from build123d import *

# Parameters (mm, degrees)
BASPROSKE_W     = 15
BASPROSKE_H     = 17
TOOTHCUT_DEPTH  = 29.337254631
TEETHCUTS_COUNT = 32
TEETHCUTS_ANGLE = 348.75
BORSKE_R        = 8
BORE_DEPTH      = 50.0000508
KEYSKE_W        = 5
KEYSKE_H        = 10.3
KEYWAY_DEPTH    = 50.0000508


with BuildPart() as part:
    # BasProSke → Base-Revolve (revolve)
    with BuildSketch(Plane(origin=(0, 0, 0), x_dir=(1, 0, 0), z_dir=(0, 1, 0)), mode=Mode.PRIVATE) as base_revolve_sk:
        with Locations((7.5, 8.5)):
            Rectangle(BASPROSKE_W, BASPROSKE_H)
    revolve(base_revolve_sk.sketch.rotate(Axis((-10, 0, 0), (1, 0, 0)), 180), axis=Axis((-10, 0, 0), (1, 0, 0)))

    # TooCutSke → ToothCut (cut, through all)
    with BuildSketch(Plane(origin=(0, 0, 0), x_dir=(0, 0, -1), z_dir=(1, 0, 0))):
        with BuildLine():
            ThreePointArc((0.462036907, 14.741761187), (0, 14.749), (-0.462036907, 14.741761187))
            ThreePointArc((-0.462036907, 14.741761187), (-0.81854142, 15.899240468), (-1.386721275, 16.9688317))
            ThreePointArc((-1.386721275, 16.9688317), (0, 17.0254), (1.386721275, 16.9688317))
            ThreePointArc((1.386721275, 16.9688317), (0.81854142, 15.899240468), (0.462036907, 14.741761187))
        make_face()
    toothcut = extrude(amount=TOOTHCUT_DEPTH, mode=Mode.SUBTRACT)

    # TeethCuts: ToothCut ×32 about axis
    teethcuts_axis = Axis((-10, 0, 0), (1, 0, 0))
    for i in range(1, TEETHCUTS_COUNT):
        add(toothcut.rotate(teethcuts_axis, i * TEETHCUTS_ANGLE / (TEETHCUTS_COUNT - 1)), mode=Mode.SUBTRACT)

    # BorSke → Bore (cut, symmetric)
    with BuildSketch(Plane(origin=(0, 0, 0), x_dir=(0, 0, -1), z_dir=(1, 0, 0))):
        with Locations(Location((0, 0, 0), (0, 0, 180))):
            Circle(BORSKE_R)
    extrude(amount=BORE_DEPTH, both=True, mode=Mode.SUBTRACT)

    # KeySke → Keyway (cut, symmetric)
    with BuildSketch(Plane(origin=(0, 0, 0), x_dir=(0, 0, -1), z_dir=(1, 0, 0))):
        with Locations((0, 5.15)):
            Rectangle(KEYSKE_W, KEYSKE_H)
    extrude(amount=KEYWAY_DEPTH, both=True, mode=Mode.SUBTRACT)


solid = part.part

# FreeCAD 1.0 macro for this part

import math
import FreeCAD as App
import Part
import Sketcher
from FreeCAD import Vector
Q = App.Units.Quantity


def add_polygon(sketch, points):
    """Adds a closed chain of lines whose ends are joined by coincident constraints."""
    first, n = sketch.GeometryCount, len(points)
    for a, b in zip(points, points[1:] + points[:1]):
        sketch.addGeometry(Part.LineSegment(App.Vector(*a, 0), App.Vector(*b, 0)), False)
    for i in range(n):
        sketch.addConstraint(Sketcher.Constraint("Coincident", first + i, 2, first + (i + 1) % n, 1))

doc = App.newDocument("Part")
body = doc.addObject("PartDesign::Body", "Body")

# Sketch on XZ plane
sketch1 = body.newObject("Sketcher::SketchObject", "Sketch")
sketch1.AttachmentSupport = (doc.getObject("XZ_Plane"), [""])
sketch1.MapMode = "FlatFace"
add_polygon(sketch1, [(0, -17), (0, 0), (15, 0), (15, -17)])  # lines 0-3
sketch1.addConstraint(Sketcher.Constraint("Vertical", 0))
sketch1.addConstraint(Sketcher.Constraint("Horizontal", 1))
sketch1.addConstraint(Sketcher.Constraint("Vertical", 2))
sketch1.addConstraint(Sketcher.Constraint("Horizontal", 3))
sketch1.addConstraint(Sketcher.Constraint("Coincident", 0, 2, -1, 1))
sketch1.addConstraint(Sketcher.Constraint("DistanceX", 1, 1, 1, 2, Q("15 mm")))
sketch1.addConstraint(Sketcher.Constraint("DistanceY", 0, 1, 0, 2, Q("17 mm")))
revolution = body.newObject("PartDesign::Revolution", "Revolution")
revolution.Profile = sketch1
revolution.ReferenceAxis = (sketch1, ["H_Axis"])
revolution.Angle = 360

# Sketch on YZ plane
sketch2 = body.newObject("Sketcher::SketchObject", "Sketch001")
sketch2.AttachmentSupport = (doc.getObject("YZ_Plane"), [""])
sketch2.MapMode = "FlatFace"
sketch2.addGeometry(Part.ArcOfCircle(Part.Circle(Vector(0, 0, 0), Vector(0, 0, 1), 14.7), math.radians(-1.8), math.radians(1.8)), False)
sketch2.addGeometry(Part.ArcOfCircle(Part.Circle(Vector(13.4, -6.7, 0), Vector(0, 0, 1), 6.4), math.radians(57), math.radians(78)), False)
sketch2.addGeometry(Part.ArcOfCircle(Part.Circle(Vector(0, 0, 0), Vector(0, 0, 1), 17), math.radians(-4.67), math.radians(4.67)), False)
sketch2.addGeometry(Part.ArcOfCircle(Part.Circle(Vector(13.4, 6.7, 0), Vector(0, 0, 1), 6.4), math.radians(-78), math.radians(-57)), False)
sketch2.addConstraint(Sketcher.Constraint("Coincident", 0, 1, 1, 2))
sketch2.addConstraint(Sketcher.Constraint("Coincident", 1, 1, 2, 1))
sketch2.addConstraint(Sketcher.Constraint("Coincident", 2, 2, 3, 2))
sketch2.addConstraint(Sketcher.Constraint("Coincident", 3, 1, 0, 2))
sketch2.addConstraint(Sketcher.Constraint("Coincident", 0, 3, -1, 1))
sketch2.addConstraint(Sketcher.Constraint("Coincident", 2, 3, -1, 1))
sketch2.addConstraint(Sketcher.Constraint("Equal", 1, 3))
sketch2.addConstraint(Sketcher.Constraint("Symmetric", 1, 3, 3, 3, -1))
sketch2.addConstraint(Sketcher.Constraint("Radius", 1, Q("6.4 mm")))
sketch2.addConstraint(Sketcher.Constraint("Radius", 0, Q("14.749 mm")))
sketch2.addConstraint(Sketcher.Constraint("Radius", 2, Q("17.0254 mm")))
sketch2.addConstraint(Sketcher.Constraint("DistanceX", -1, 1, 1, 3, Q("13.44508 mm")))
sketch2.addConstraint(Sketcher.Constraint("DistanceX", -1, 1, 0, 1, Q("14.741761 mm")))
pocket1 = body.newObject("PartDesign::Pocket", "Pocket")
pocket1.Profile = sketch2
pocket1.Type = "ThroughAll"
pocket1.Reversed = True
doc.recompute()

polarpattern = body.newObject("PartDesign::PolarPattern", "PolarPattern")
polarpattern.Originals = [pocket1]
polarpattern.Axis = (doc.getObject("X_Axis"), [""])
polarpattern.Angle = 360
polarpattern.Occurrences = 32
body.Tip = polarpattern

# Sketch on YZ plane
sketch3 = body.newObject("Sketcher::SketchObject", "Sketch002")
sketch3.AttachmentSupport = (doc.getObject("YZ_Plane"), [""])
sketch3.MapMode = "FlatFace"
sketch3.addGeometry(Part.Circle(Vector(0, 0, 0), Vector(0, 0, 1), 8), False)
sketch3.addConstraint(Sketcher.Constraint("Coincident", 0, 3, -1, 1))
sketch3.addConstraint(Sketcher.Constraint("Diameter", 0, Q("16 mm")))
pocket2 = body.newObject("PartDesign::Pocket", "Pocket001")
pocket2.Profile = sketch3
pocket2.Length = 100.000102
pocket2.Midplane = True

# Sketch on YZ plane
sketch4 = body.newObject("Sketcher::SketchObject", "Sketch003")
sketch4.AttachmentSupport = (doc.getObject("YZ_Plane"), [""])
sketch4.MapMode = "FlatFace"
add_polygon(sketch4, [(10, 2), (0, 2), (0, -2), (10, -2)])  # lines 0-3
sketch4.addConstraint(Sketcher.Constraint("Horizontal", 0))
sketch4.addConstraint(Sketcher.Constraint("Vertical", 1))
sketch4.addConstraint(Sketcher.Constraint("Horizontal", 2))
sketch4.addConstraint(Sketcher.Constraint("Vertical", 3))
sketch4.addConstraint(Sketcher.Constraint("Symmetric", 0, 2, 1, 2, -1, 1))
sketch4.addConstraint(Sketcher.Constraint("DistanceY", 1, 2, 1, 1, Q("5 mm")))
sketch4.addConstraint(Sketcher.Constraint("DistanceX", 0, 2, 0, 1, Q("10.3 mm")))
pocket3 = body.newObject("PartDesign::Pocket", "Pocket002")
pocket3.Profile = sketch4
pocket3.Length = 100.000102
pocket3.Midplane = True

doc.recompute()
